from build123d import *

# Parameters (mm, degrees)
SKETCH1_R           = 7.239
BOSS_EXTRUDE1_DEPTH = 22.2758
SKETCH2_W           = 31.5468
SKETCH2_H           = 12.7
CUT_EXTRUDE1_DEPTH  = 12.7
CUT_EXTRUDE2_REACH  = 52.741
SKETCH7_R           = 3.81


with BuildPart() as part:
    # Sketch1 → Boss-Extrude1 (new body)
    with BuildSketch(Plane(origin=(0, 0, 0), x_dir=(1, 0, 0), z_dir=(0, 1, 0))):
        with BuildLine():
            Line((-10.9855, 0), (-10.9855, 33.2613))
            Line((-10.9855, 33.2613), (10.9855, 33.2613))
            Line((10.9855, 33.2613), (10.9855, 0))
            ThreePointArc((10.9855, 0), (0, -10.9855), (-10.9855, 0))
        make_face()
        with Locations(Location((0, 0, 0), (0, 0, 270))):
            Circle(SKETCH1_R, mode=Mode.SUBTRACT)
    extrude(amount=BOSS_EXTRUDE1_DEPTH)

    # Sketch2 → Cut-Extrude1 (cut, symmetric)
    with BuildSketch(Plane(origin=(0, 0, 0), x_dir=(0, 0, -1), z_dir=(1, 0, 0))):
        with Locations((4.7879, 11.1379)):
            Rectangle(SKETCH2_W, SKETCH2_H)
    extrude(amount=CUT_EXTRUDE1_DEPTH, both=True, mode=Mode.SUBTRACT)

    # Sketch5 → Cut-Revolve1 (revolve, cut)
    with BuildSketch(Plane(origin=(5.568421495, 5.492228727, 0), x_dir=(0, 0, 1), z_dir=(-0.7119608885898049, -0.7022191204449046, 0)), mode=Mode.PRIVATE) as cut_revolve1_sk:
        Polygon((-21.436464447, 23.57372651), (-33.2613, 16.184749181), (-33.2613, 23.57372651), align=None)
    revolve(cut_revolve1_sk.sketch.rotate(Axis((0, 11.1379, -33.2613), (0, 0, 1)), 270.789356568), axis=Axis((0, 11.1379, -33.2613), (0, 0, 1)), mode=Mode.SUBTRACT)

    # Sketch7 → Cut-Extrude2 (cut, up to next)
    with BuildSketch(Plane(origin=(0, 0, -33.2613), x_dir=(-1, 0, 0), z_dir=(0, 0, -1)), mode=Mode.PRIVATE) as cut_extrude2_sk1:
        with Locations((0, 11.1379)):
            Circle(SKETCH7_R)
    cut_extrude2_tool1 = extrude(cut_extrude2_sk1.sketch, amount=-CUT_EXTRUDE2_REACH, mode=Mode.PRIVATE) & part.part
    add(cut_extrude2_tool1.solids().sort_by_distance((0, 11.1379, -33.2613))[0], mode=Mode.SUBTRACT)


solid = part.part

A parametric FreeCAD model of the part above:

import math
import FreeCAD as App
import Part
import Sketcher
Q = App.Units.Quantity


def add_polygon(sketch, points):
    """Adds a closed chain of lines whose ends are joined by coincident constraints."""
    first, n = sketch.GeometryCount, len(points)
    for a, b in zip(points, points[1:] + points[:1]):
        sketch.addGeometry(Part.LineSegment(App.Vector(*a, 0), App.Vector(*b, 0)), False)
    for i in range(n):
        sketch.addConstraint(Sketcher.Constraint("Coincident", first + i, 2, first + (i + 1) % n, 1))

doc = App.newDocument("Part")
body = doc.addObject("PartDesign::Body", "Body")

# Sketch on XZ plane
sketch1 = doc.addObject("Sketcher::SketchObject", "Sketch")
body.addObject(sketch1)
sketch1.AttachmentSupport = (doc.XZ_Plane, [""])
sketch1.MapMode = "FlatFace"
sketch1.addGeometry([
    Part.LineSegment(App.Vector(-11, -33, 0), App.Vector(-11, 0, 0)),  # 0
    Part.ArcOfCircle(Part.Circle(App.Vector(0, 0, 0), App.Vector(0, 0, 1), 11), math.radians(0), math.radians(180)),  # 1
    Part.LineSegment(App.Vector(11, 0, 0), App.Vector(11, -33, 0)),  # 2
    Part.LineSegment(App.Vector(11, -33, 0), App.Vector(-11, -33, 0)),  # 3
    Part.Circle(App.Vector(0, 0, 0), App.Vector(0, 0, 1), 7),  # 4
], False)
sketch1.addConstraint([
    Sketcher.Constraint("Tangent", 0, 2, 1, 2),
    Sketcher.Constraint("Tangent", 1, 1, 2, 1),
    Sketcher.Constraint("Coincident", 2, 2, 3, 1),
    Sketcher.Constraint("Coincident", 3, 2, 0, 1),
    Sketcher.Constraint("Vertical", 0),
    Sketcher.Constraint("Vertical", 2),
    Sketcher.Constraint("Horizontal", 3),
    Sketcher.Constraint("Coincident", 1, 3, -1, 1),
    Sketcher.Constraint("Coincident", 4, 3, -1, 1),
    Sketcher.Constraint("Diameter", 4, Q("0.57 in")),
    Sketcher.Constraint("Radius", 1, Q("0.4325 in")),
    Sketcher.Constraint("DistanceY", 0, 1, 0, 2, Q("1.3095 in")),
])
pad1 = doc.addObject("PartDesign::Pad", "Pad")
body.addObject(pad1)
pad1.Profile = sketch1
pad1.Length = Q("0.877 in")
pad1.Reversed = True

# Sketch on YZ plane
sketch2 = doc.addObject("Sketcher::SketchObject", "Sketch001")
body.addObject(sketch2)
sketch2.AttachmentSupport = (doc.YZ_Plane, [""])
sketch2.MapMode = "FlatFace"
add_polygon(sketch2, [(17, 11), (5, 11), (5, -21), (17, -21)])  # lines 0-3
sketch2.addConstraint([
    Sketcher.Constraint("Horizontal", 0),
    Sketcher.Constraint("Vertical", 1),
    Sketcher.Constraint("Horizontal", 2),
    Sketcher.Constraint("Vertical", 3),
    Sketcher.Constraint("DistanceX", 0, 2, 0, 1, Q("0.5 in")),
    Sketcher.Constraint("DistanceY", 1, 2, 1, 1, Q("1.242 in")),
    Sketcher.Constraint("DistanceX", -1, 1, 0, 2, Q("0.1885 in")),
    Sketcher.Constraint("DistanceY", -1, 1, 0, 2, Q("0.4325 in")),
])
pocket1 = doc.addObject("PartDesign::Pocket", "Pocket")
body.addObject(pocket1)
pocket1.Profile = sketch2
pocket1.Length = Q("1 in")
pocket1.Midplane = True

# Sketch on an angled plane
sketch3 = doc.addObject("Sketcher::SketchObject", "Sketch002")
body.addObject(sketch3)
sketch3.Placement = App.Placement(App.Vector(5.568421, 5.492229, 0), App.Rotation(App.Vector(0, 0, 1), App.Vector(-0.70221912, 0.711960889, 0), App.Vector(-0.711960889, -0.70221912, 0), "ZXY"))
add_polygon(sketch3, [(-33, 16), (-21, 24), (-33, 24)])  # lines 0-2
sketch3.addGeometry(Part.LineSegment(App.Vector(-33, 8, 0), App.Vector(-21, 8, 0)), True)  # axis
sketch3.addConstraint([
    Sketcher.Constraint("Horizontal", 1),
    Sketcher.Constraint("Vertical", 2),
    Sketcher.Constraint("Horizontal", 3),
    Sketcher.Constraint("Vertical", 2, 2, 3, 1),
    Sketcher.Constraint("Vertical", 0, 2, 3, 2),
    Sketcher.Constraint("Angle", 0, Q("32 deg")),
    Sketcher.Constraint("DistanceY", 3, 1, 2, 2, Q("0.325 in")),
    Sketcher.Constraint("DistanceX", 1, 2, -1, 1, Q("1.3095 in")),
    Sketcher.Constraint("Distance", 0, 13.943591),
    Sketcher.Constraint("DistanceY", -1, 1, 2, 2, 16.184749),
])
groove = doc.addObject("PartDesign::Groove", "Groove")
body.addObject(groove)
groove.Profile = sketch3
groove.ReferenceAxis = (sketch3, ["Axis0"])
groove.Angle = 360

# Sketch on XY plane
sketch4 = doc.addObject("Sketcher::SketchObject", "Sketch003")
body.addObject(sketch4)
sketch4.AttachmentSupport = (doc.XY_Plane, [""])
sketch4.MapMode = "FlatFace"
sketch4.AttachmentOffset = App.Placement(App.Vector(0, 0, -1.3095 * 25.4), App.Rotation())
sketch4.addGeometry(Part.Circle(App.Vector(0, 11.1, 0), App.Vector(0, 0, 1), 3.8), False)
sketch4.addConstraint([
    Sketcher.Constraint("PointOnObject", 0, 3, -2),
    Sketcher.Constraint("Diameter", 0, Q("0.3 in")),
    Sketcher.Constraint("DistanceY", -1, 1, 0, 3, Q("0.4385 in")),
])
pocket2 = doc.addObject("PartDesign::Pocket", "Pocket001")
body.addObject(pocket2)
pocket2.Profile = sketch4
pocket2.Type = "UpToFirst"
pocket2.Reversed = True

doc.recompute()
